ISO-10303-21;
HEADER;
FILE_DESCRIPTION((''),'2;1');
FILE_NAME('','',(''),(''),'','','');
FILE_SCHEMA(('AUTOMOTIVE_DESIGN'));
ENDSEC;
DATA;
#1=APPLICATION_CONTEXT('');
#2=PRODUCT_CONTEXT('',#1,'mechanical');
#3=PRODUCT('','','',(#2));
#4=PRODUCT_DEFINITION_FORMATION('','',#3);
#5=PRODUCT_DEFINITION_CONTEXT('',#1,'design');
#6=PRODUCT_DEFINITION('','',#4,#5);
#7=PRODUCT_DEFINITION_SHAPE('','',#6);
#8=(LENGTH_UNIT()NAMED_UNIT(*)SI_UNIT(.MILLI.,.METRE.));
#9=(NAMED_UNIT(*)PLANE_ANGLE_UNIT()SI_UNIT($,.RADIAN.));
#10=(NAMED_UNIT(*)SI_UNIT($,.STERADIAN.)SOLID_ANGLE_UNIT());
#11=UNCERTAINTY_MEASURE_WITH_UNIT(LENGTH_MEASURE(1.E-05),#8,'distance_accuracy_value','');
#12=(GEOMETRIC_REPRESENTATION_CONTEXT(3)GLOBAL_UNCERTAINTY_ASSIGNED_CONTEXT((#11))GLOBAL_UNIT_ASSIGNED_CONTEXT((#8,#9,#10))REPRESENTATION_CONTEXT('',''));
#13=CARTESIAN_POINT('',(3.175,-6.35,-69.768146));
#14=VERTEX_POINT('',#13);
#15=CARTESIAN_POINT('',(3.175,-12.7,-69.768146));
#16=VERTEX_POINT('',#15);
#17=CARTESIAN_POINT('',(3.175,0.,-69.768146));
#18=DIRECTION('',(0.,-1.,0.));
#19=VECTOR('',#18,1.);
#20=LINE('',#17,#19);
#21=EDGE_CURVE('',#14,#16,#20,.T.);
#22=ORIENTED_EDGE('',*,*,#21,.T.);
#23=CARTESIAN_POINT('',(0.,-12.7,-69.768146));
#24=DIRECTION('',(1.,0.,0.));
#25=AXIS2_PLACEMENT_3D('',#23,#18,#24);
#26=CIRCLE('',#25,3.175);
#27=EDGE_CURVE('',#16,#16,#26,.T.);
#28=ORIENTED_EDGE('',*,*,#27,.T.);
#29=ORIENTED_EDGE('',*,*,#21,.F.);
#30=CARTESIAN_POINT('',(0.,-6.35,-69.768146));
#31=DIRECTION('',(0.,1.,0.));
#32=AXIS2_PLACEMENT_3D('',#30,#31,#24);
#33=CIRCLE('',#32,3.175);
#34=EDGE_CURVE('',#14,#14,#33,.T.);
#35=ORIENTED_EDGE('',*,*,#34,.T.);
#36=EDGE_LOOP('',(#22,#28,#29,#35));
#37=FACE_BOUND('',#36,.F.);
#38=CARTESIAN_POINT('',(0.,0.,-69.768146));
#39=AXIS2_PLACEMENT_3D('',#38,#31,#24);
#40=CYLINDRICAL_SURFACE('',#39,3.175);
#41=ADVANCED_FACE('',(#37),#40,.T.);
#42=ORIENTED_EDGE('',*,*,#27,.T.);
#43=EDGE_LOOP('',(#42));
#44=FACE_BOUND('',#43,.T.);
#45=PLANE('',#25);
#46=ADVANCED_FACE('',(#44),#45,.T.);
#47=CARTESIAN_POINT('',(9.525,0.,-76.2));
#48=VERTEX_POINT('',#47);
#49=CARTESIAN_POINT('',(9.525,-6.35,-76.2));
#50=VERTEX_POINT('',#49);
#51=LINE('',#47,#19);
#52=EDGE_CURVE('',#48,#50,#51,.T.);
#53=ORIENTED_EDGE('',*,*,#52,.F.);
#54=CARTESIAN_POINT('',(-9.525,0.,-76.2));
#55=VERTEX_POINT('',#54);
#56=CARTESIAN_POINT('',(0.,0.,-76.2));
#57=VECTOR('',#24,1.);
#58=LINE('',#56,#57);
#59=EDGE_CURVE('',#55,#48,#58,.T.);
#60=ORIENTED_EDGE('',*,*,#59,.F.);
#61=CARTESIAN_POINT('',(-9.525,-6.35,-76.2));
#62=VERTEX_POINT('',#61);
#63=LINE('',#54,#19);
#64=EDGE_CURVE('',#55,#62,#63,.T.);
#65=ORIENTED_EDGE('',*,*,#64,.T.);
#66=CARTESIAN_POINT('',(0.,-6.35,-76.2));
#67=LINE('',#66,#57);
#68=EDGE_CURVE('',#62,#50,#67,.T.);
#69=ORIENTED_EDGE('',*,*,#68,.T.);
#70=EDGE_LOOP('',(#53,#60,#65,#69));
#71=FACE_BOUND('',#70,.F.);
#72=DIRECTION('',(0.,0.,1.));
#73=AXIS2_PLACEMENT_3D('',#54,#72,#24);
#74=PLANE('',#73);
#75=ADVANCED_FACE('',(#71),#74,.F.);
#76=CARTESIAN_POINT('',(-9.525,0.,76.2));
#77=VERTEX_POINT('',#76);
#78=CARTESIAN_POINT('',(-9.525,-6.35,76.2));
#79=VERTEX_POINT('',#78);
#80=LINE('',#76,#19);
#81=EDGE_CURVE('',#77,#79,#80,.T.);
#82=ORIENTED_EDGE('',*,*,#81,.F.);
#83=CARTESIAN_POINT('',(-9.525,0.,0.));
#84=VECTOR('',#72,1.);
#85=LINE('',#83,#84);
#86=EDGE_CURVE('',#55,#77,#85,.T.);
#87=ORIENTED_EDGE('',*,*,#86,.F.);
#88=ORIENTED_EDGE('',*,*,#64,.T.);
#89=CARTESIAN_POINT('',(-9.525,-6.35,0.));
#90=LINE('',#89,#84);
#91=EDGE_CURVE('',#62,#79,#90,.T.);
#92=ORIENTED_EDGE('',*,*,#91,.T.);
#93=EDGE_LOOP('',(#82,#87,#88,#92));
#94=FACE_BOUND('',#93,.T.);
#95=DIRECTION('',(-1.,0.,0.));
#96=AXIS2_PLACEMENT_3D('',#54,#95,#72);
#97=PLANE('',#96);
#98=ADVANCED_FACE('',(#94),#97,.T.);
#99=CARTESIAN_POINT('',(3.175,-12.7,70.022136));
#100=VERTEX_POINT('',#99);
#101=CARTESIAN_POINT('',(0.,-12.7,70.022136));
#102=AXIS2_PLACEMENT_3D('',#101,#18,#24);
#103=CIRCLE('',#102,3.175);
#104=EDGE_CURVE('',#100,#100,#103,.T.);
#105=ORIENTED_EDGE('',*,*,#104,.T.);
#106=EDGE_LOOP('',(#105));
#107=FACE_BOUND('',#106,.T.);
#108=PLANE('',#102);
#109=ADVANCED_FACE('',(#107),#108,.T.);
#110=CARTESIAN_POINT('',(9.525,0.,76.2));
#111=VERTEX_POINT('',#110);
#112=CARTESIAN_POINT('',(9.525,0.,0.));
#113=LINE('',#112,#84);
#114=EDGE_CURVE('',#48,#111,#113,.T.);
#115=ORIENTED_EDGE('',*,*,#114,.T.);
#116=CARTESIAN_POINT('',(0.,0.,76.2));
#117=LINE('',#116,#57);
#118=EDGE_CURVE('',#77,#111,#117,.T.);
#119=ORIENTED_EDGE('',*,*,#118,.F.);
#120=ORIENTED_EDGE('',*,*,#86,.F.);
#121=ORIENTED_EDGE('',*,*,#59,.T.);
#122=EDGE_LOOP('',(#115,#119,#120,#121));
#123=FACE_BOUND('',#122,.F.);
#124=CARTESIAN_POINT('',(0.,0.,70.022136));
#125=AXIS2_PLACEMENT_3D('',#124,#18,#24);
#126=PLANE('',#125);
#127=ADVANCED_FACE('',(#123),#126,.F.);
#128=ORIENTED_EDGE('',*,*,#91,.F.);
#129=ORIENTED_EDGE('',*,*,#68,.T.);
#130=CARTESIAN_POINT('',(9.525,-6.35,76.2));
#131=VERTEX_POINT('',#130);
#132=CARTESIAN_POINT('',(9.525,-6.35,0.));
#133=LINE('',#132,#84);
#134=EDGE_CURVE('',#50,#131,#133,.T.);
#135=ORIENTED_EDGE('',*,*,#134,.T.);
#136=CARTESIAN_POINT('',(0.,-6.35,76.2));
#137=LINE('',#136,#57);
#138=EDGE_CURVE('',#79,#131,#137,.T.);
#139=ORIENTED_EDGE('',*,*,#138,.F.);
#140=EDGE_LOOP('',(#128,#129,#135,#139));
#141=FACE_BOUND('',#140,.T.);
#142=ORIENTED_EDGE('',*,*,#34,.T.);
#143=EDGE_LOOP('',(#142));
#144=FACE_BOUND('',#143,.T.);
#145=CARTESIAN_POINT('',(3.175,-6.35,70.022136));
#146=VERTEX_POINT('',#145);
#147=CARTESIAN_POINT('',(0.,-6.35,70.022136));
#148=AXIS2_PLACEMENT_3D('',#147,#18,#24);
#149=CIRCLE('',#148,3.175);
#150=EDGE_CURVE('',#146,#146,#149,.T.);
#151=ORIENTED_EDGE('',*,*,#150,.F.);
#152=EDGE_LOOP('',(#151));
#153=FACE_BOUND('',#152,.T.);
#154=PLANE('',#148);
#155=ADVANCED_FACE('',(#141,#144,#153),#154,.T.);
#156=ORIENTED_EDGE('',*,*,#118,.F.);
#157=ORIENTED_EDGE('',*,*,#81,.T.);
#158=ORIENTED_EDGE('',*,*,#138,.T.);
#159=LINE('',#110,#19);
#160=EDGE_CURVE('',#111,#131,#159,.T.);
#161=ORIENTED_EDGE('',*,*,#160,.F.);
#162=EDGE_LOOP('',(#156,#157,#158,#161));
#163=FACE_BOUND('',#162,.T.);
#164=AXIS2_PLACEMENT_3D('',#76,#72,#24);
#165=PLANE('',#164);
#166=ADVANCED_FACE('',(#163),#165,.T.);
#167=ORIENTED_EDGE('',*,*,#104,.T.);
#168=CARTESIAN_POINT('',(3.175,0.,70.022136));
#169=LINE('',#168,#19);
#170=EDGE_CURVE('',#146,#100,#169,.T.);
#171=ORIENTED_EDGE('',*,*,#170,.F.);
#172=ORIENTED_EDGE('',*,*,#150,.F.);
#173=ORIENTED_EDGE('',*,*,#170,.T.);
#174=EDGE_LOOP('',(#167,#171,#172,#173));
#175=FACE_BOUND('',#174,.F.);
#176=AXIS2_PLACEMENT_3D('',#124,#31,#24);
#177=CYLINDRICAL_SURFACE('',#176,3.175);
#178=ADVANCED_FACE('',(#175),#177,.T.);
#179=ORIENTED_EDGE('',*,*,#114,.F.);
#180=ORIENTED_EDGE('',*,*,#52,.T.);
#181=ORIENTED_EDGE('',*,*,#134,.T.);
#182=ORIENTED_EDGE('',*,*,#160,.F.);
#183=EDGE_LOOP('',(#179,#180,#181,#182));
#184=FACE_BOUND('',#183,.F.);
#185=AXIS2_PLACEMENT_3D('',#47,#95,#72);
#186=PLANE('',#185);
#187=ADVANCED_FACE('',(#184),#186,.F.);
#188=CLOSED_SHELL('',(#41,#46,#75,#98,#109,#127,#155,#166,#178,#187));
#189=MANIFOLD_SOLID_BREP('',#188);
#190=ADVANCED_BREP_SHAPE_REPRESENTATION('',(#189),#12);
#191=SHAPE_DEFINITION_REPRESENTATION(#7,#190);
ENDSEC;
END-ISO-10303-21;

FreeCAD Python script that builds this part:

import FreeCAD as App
import Part
import Sketcher

V = App.Vector
Q = App.Units.Quantity


def add_polygon(sketch, points):
    """Adds a closed chain of lines whose ends are joined by coincident constraints."""
    first, n = sketch.GeometryCount, len(points)
    for a, b in zip(points, points[1:] + points[:1]):
        sketch.addGeometry(Part.LineSegment(App.Vector(*a, 0), App.Vector(*b, 0)), False)
    for i in range(n):
        sketch.addConstraint(Sketcher.Constraint("Coincident", first + i, 2, first + (i + 1) % n, 1))

doc = App.newDocument("Part")
body = doc.addObject("PartDesign::Body", "Body")

# Sketch on XZ plane
sketch1 = body.newObject("Sketcher::SketchObject", "Sketch")
sketch1.AttachmentSupport = (doc.getObject("XZ_Plane"), [""])
sketch1.MapMode = "FlatFace"
add_polygon(sketch1, [(-9.525, 76.2), (-9.525, -76.2), (9.525, -76.2), (9.525, 76.2)])  # lines 0-3
sketch1.addGeometry(Part.Circle(V(0, 70.022136, 0), V(0, 0, 1), 3.175), False)  # 4
sketch1.addConstraint([
    Sketcher.Constraint("Vertical", 0),
    Sketcher.Constraint("Horizontal", 1),
    Sketcher.Constraint("Vertical", 2),
    Sketcher.Constraint("Horizontal", 3),
    Sketcher.Constraint("Symmetric", 0, 2, 2, 2, -1, 1),
    Sketcher.Constraint("PointOnObject", 4, 3, -2),
    Sketcher.Constraint("Diameter", 4, Q("0.25 in")),
    Sketcher.Constraint("DistanceY", 0, 2, 0, 1, Q("6 in")),
    Sketcher.Constraint("DistanceX", 1, 1, 1, 2, Q("0.75 in")),
    Sketcher.Constraint("DistanceY", -1, 1, 4, 3, 70.022136),
])
pad1 = body.newObject("PartDesign::Pad", "Pad")
pad1.Profile = sketch1
pad1.Length = Q("0.25 in")

# Sketch on XZ plane
sketch2 = body.newObject("Sketcher::SketchObject", "Sketch001")
sketch2.AttachmentSupport = (doc.getObject("XZ_Plane"), [""])
sketch2.MapMode = "FlatFace"
sketch2.addGeometry([
    Part.Circle(V(0, 70.022136, 0), V(0, 0, 1), 3.175),
    Part.Circle(V(0, -69.768146, 0), V(0, 0, 1), 3.175),
], False)
sketch2.addConstraint([
    Sketcher.Constraint("Equal", 0, 1),
    Sketcher.Constraint("PointOnObject", 0, 3, -2),
    Sketcher.Constraint("PointOnObject", 1, 3, -2),
    Sketcher.Constraint("Diameter", 0, Q("0.25 in")),
    Sketcher.Constraint("DistanceY", 1, 3, 0, 3, 139.790282),
    Sketcher.Constraint("DistanceY", -1, 1, 0, 3, 70.022136),
])
pad2 = body.newObject("PartDesign::Pad", "Pad001")
pad2.Profile = sketch2
pad2.Length = Q("0.5 in")

doc.recompute()
